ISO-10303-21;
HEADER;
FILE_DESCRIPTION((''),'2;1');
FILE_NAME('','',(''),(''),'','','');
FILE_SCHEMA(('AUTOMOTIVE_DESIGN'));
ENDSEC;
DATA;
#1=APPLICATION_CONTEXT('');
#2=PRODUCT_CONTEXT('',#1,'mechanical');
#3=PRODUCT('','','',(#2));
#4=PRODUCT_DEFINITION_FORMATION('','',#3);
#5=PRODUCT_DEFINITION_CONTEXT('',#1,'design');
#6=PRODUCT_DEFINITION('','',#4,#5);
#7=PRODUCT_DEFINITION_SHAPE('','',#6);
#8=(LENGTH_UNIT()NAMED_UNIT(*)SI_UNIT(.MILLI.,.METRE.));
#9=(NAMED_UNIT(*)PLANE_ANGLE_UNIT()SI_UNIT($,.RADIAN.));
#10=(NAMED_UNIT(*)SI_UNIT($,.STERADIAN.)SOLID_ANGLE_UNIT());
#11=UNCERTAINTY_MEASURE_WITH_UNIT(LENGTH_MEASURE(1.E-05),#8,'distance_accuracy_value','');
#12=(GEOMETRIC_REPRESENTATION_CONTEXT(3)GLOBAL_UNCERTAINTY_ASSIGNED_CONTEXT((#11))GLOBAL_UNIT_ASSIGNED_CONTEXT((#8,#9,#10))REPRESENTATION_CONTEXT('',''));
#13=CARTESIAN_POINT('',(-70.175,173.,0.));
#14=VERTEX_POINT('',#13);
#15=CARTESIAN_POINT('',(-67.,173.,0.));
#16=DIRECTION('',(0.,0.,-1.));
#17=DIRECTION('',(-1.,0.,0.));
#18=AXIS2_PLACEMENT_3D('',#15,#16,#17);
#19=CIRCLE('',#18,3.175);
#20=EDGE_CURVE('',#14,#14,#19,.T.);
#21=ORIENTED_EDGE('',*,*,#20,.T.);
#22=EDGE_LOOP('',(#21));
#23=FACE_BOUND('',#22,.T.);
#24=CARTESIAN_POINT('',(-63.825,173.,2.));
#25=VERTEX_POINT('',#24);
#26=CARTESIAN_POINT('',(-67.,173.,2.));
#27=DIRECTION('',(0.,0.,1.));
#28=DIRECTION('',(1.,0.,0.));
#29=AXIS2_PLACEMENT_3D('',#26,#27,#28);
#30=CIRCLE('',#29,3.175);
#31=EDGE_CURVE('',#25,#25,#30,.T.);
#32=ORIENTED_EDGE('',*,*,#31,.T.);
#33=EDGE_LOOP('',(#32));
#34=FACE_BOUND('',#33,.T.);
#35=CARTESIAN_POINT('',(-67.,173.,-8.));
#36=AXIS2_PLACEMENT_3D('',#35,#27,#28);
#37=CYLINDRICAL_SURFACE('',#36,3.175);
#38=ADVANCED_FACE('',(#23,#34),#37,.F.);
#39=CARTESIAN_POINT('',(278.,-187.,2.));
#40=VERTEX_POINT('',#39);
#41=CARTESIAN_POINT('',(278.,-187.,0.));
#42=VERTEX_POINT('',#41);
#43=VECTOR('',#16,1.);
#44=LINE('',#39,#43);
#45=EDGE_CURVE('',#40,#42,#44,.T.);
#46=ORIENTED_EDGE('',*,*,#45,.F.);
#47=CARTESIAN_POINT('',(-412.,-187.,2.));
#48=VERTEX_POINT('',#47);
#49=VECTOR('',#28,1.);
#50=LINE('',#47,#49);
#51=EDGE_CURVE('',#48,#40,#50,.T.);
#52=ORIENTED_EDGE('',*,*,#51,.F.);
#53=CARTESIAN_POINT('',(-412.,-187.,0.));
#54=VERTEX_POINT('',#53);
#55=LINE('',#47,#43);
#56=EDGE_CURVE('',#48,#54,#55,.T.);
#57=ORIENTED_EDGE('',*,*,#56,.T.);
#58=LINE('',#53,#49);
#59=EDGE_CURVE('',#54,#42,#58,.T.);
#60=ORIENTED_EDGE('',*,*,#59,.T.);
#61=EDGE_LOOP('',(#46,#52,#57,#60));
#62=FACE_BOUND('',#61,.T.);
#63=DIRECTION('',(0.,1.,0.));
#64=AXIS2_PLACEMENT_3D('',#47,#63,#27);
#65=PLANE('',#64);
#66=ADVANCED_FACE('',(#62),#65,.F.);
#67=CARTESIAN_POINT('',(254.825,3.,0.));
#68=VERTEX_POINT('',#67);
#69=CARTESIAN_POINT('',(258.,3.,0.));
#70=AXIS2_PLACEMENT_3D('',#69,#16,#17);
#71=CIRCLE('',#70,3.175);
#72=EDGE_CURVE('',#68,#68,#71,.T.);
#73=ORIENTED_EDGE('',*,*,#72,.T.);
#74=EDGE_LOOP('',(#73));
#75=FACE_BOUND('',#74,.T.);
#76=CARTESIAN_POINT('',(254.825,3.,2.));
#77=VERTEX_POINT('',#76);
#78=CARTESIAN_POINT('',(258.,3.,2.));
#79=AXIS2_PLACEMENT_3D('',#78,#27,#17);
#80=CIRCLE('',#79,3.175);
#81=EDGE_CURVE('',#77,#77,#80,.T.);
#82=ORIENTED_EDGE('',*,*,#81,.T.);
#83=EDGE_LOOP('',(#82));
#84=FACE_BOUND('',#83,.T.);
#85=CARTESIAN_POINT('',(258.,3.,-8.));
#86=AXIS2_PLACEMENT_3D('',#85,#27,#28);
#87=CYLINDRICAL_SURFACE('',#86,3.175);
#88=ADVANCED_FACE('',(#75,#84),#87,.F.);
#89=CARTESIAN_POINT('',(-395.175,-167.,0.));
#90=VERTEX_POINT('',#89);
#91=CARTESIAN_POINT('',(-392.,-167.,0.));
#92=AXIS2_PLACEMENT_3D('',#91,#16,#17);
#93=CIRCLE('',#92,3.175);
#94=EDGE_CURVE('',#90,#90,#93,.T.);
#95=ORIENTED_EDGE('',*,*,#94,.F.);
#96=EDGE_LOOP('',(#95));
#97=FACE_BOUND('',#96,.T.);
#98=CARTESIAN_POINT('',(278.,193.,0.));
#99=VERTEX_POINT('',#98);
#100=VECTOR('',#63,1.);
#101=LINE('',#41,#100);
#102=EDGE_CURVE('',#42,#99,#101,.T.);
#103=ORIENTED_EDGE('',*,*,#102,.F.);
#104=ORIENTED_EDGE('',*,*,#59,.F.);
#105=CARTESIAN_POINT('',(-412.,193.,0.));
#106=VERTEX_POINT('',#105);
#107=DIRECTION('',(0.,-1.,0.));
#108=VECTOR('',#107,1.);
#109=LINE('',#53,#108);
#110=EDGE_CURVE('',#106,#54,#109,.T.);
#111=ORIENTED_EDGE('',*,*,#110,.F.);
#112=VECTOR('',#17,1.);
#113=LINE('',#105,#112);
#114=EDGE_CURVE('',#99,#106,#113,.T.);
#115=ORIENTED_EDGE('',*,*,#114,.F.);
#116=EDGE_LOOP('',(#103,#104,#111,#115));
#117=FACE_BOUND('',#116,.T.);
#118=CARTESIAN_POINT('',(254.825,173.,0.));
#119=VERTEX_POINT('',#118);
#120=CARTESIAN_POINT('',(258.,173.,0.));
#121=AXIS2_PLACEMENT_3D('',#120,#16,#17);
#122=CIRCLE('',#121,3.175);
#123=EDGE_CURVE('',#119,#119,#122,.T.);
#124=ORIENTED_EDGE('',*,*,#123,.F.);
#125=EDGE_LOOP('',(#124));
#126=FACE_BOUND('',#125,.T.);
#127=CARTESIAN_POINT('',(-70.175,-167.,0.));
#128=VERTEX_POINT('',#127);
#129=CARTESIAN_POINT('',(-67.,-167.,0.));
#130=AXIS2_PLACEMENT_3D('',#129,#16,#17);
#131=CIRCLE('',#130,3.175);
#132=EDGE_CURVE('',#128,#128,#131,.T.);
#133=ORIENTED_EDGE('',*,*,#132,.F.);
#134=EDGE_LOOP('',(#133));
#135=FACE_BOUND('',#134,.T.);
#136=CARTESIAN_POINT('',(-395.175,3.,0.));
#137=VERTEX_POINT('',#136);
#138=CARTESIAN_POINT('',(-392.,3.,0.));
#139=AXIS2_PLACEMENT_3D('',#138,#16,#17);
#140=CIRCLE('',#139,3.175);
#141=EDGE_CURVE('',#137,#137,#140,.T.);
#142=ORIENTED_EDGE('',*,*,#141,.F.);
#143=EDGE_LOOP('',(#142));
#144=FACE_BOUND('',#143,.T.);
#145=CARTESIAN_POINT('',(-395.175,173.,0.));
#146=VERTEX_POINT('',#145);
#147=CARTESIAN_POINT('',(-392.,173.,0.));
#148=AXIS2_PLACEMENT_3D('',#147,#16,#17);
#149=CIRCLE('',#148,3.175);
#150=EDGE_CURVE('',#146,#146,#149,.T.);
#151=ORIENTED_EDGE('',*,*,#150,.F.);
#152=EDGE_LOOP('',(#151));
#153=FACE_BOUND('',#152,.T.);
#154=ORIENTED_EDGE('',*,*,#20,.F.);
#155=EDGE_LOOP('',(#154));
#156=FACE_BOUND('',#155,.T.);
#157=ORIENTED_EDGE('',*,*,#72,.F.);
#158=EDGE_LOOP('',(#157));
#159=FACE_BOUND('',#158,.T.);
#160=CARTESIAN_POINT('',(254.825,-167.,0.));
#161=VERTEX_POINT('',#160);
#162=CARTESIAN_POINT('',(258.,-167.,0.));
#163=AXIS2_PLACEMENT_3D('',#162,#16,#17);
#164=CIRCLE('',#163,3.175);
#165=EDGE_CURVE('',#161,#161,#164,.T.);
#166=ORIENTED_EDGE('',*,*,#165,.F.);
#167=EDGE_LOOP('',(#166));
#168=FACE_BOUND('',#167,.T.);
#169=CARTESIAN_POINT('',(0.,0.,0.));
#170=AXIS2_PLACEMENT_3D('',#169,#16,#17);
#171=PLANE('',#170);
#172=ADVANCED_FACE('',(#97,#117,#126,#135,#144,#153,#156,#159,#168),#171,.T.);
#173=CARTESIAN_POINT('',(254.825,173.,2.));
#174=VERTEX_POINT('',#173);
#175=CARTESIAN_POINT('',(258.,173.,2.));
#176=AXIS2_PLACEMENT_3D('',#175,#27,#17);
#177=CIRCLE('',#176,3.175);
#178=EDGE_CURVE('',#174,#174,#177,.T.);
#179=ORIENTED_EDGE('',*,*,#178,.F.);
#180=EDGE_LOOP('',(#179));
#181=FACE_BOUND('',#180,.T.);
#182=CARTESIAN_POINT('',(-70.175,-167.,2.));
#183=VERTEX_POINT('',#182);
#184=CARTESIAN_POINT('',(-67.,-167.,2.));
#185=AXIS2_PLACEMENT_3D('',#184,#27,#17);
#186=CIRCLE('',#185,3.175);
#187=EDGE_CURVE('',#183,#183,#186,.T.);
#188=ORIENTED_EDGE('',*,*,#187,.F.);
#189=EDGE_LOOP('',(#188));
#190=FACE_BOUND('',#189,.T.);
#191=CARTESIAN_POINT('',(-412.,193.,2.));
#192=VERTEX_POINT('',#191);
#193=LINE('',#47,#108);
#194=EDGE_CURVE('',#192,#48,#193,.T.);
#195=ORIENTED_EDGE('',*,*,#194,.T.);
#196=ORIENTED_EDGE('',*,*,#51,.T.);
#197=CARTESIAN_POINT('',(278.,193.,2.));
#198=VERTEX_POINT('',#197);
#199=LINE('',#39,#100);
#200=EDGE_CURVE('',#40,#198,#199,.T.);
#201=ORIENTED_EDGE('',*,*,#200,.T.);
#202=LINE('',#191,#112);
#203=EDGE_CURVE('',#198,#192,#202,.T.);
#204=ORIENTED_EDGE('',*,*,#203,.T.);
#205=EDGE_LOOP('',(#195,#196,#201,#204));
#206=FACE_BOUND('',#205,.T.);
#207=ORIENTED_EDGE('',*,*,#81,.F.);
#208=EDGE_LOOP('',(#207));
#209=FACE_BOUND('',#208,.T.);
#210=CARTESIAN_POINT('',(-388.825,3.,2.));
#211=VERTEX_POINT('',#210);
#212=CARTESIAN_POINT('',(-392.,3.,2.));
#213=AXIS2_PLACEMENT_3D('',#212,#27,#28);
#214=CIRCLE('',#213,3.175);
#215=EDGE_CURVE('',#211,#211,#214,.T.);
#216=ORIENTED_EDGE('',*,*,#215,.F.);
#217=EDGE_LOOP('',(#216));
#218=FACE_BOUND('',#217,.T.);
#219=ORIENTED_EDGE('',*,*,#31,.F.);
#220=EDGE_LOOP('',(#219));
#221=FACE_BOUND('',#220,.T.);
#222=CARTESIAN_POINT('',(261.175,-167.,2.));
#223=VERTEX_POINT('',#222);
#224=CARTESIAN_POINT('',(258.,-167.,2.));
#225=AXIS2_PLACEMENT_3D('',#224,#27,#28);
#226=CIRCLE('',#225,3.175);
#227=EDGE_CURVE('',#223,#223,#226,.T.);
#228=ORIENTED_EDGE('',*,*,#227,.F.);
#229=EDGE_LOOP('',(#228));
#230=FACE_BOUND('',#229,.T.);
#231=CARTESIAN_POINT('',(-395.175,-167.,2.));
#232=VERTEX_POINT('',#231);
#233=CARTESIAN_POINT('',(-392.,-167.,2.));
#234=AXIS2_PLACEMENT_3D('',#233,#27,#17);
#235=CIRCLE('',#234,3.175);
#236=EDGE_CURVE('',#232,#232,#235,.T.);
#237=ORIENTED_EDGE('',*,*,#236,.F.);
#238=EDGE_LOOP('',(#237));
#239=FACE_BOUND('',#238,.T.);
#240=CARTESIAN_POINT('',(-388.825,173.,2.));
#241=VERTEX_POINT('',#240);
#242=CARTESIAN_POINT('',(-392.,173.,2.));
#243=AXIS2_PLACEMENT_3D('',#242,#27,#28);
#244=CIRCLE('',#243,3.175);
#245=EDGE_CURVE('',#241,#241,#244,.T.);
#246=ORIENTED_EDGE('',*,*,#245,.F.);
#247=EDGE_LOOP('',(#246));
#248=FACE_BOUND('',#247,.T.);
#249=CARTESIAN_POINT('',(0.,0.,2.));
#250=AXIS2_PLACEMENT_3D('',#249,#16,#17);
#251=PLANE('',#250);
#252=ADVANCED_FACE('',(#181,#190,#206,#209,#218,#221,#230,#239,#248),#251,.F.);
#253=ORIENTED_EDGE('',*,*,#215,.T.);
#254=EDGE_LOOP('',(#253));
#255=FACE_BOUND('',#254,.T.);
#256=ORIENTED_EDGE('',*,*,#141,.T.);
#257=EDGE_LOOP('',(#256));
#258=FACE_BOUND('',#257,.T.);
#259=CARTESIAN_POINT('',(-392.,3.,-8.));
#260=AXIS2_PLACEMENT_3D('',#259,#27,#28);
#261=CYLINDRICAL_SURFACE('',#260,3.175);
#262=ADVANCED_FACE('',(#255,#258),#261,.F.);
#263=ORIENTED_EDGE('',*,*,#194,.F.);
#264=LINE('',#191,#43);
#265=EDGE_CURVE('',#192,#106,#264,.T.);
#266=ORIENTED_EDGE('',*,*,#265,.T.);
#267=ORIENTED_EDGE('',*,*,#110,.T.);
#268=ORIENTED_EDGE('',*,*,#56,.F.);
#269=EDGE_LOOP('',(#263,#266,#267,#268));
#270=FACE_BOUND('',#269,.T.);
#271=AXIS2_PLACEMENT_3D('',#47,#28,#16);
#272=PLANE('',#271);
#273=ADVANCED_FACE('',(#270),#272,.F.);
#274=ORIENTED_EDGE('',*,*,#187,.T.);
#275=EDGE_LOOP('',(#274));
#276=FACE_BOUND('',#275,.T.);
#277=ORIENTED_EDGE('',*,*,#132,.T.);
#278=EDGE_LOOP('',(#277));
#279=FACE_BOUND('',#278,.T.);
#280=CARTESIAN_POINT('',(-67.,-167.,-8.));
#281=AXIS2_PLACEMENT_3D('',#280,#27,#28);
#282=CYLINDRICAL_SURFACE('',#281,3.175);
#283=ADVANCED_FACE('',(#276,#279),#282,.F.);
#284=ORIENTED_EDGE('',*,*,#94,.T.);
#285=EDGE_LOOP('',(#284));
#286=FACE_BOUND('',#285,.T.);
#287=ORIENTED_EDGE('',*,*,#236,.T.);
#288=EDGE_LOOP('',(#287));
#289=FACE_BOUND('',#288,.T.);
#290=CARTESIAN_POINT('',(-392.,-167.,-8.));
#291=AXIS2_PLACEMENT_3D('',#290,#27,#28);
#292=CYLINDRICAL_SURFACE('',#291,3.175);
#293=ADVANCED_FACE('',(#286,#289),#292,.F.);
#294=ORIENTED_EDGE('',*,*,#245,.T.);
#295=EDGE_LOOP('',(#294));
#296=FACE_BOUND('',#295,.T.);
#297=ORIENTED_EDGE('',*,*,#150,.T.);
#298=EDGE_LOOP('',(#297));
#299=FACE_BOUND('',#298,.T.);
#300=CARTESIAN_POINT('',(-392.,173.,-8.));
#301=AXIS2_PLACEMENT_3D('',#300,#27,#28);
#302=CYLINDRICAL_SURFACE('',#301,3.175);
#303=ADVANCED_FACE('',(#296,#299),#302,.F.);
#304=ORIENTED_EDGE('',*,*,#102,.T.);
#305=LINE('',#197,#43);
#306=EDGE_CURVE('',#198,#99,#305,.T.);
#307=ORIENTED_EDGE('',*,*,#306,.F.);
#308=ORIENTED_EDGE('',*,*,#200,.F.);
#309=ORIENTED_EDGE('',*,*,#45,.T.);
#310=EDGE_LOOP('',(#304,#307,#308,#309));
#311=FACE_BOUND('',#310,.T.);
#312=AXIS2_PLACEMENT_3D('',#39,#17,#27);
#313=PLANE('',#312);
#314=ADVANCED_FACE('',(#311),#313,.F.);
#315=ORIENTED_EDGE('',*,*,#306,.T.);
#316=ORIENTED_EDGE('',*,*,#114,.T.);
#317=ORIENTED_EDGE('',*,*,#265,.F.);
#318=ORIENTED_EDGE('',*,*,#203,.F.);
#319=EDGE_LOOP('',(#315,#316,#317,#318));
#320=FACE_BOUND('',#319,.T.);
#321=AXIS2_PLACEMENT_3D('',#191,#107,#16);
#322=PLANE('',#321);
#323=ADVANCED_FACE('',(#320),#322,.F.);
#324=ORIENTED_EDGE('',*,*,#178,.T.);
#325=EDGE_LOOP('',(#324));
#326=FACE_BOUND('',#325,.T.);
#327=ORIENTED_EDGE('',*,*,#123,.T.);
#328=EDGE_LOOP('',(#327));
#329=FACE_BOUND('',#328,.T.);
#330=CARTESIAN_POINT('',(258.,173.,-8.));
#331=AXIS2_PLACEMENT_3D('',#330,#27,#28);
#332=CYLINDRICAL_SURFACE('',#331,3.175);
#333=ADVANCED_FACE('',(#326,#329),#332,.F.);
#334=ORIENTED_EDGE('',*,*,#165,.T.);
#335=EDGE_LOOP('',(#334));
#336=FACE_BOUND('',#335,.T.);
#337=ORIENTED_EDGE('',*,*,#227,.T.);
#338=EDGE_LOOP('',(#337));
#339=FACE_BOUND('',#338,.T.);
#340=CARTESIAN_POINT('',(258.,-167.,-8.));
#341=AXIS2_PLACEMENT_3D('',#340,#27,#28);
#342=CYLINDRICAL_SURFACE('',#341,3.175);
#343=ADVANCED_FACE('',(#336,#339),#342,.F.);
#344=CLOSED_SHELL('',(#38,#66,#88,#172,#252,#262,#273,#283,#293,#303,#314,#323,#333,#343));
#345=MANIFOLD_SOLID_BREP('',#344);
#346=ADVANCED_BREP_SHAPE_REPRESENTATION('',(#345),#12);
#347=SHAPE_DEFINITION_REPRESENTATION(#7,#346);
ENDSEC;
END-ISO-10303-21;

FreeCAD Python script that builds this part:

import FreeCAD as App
import Part
import Sketcher
Q = App.Units.Quantity

doc = App.newDocument("Part")
params = doc.addObject("Spreadsheet::Sheet", "Params")
for row, (alias, value) in enumerate([
    ("sketch1_width", "690 mm"),
    ("sketch1_height", "380 mm"),
    ("pad1_length", "2 mm"),
    ("sketch2_diameter", "6.35 mm"),
    ("pocket1_length", "10 mm"),
], start=1):
    params.set(f"A{row}", alias)
    params.set(f"B{row}", "=" + value)
    params.setAlias(f"B{row}", alias)

body = doc.addObject("PartDesign::Body", "Body")

sketch1 = body.newObject("Sketcher::SketchObject", "Sketch")
sketch1.AttachmentSupport = (doc.getObject("XY_Plane"), [""])
sketch1.MapMode = "FlatFace"
sketch1.addGeometry(Part.LineSegment(App.Vector(-412, 193, 0), App.Vector(-412, -187, 0)), False)
sketch1.addGeometry(Part.LineSegment(App.Vector(-412, -187, 0), App.Vector(278, -187, 0)), False)
sketch1.addGeometry(Part.LineSegment(App.Vector(278, -187, 0), App.Vector(278, 193, 0)), False)
sketch1.addGeometry(Part.LineSegment(App.Vector(278, 193, 0), App.Vector(-412, 193, 0)), False)
sketch1.addConstraint(Sketcher.Constraint("Coincident", 0, 2, 1, 1))
sketch1.addConstraint(Sketcher.Constraint("Coincident", 1, 2, 2, 1))
sketch1.addConstraint(Sketcher.Constraint("Coincident", 2, 2, 3, 1))
sketch1.addConstraint(Sketcher.Constraint("Coincident", 3, 2, 0, 1))
sketch1.addConstraint(Sketcher.Constraint("Vertical", 0))
sketch1.addConstraint(Sketcher.Constraint("Horizontal", 1))
sketch1.addConstraint(Sketcher.Constraint("Vertical", 2))
sketch1.addConstraint(Sketcher.Constraint("Horizontal", 3))
sketch1.addConstraint(Sketcher.Constraint("DistanceX", 1, 1, 1, 2, Q("690 mm")))
sketch1.addConstraint(Sketcher.Constraint("DistanceY", 0, 2, 0, 1, Q("380 mm")))
sketch1.addConstraint(Sketcher.Constraint("DistanceX", 0, 2, -1, 1, Q("412 mm")))
sketch1.addConstraint(Sketcher.Constraint("DistanceY", 0, 2, -1, 1, Q("187 mm")))
sketch1.setExpression("Constraints[8]", "Params.sketch1_width")
sketch1.setExpression("Constraints[9]", "Params.sketch1_height")
pad1 = body.newObject("PartDesign::Pad", "Pad")
pad1.Profile = sketch1
pad1.setExpression("Length", "Params.pad1_length")

sketch2 = body.newObject("Sketcher::SketchObject", "Sketch001")
sketch2.AttachmentSupport = (doc.getObject("XY_Plane"), [""])
sketch2.MapMode = "FlatFace"
sketch2.AttachmentOffset = App.Placement(App.Vector(0, 0, 2), App.Rotation())
sketch2.addGeometry(Part.Circle(App.Vector(-392, 173, 0), App.Vector(0, 0, 1), 3.2), False)
sketch2.addGeometry(Part.Circle(App.Vector(258, 173, 0), App.Vector(0, 0, 1), 3.2), False)
sketch2.addGeometry(Part.Circle(App.Vector(258, -167, 0), App.Vector(0, 0, 1), 3.2), False)
sketch2.addGeometry(Part.Circle(App.Vector(-392, -167, 0), App.Vector(0, 0, 1), 3.2), False)
sketch2.addGeometry(Part.Circle(App.Vector(-392, 3, 0), App.Vector(0, 0, 1), 3.2), False)
sketch2.addGeometry(Part.Circle(App.Vector(258, 3, 0), App.Vector(0, 0, 1), 3.2), False)
sketch2.addGeometry(Part.Circle(App.Vector(-67, 173, 0), App.Vector(0, 0, 1), 3.2), False)
sketch2.addGeometry(Part.Circle(App.Vector(-67, -167, 0), App.Vector(0, 0, 1), 3.2), False)
sketch2.addConstraint(Sketcher.Constraint("Equal", 0, 1))
sketch2.addConstraint(Sketcher.Constraint("Equal", 1, 2))
sketch2.addConstraint(Sketcher.Constraint("Equal", 2, 3))
sketch2.addConstraint(Sketcher.Constraint("Equal", 3, 4))
sketch2.addConstraint(Sketcher.Constraint("Equal", 4, 5))
sketch2.addConstraint(Sketcher.Constraint("Equal", 5, 6))
sketch2.addConstraint(Sketcher.Constraint("Equal", 6, 7))
sketch2.addConstraint(Sketcher.Constraint("Horizontal", 0, 3, 1, 3))
sketch2.addConstraint(Sketcher.Constraint("Horizontal", 2, 3, 3, 3))
sketch2.addConstraint(Sketcher.Constraint("Horizontal", 4, 3, 5, 3))
sketch2.addConstraint(Sketcher.Constraint("Horizontal", 1, 3, 6, 3))
sketch2.addConstraint(Sketcher.Constraint("Horizontal", 3, 3, 7, 3))
sketch2.addConstraint(Sketcher.Constraint("Vertical", 1, 3, 2, 3))
sketch2.addConstraint(Sketcher.Constraint("Vertical", 0, 3, 3, 3))
sketch2.addConstraint(Sketcher.Constraint("Vertical", 3, 3, 4, 3))
sketch2.addConstraint(Sketcher.Constraint("Vertical", 2, 3, 5, 3))
sketch2.addConstraint(Sketcher.Constraint("Vertical", 6, 3, 7, 3))
sketch2.addConstraint(Sketcher.Constraint("Diameter", 0, Q("6.35 mm")))
sketch2.addConstraint(Sketcher.Constraint("DistanceX", 0, 3, -1, 1, Q("392 mm")))
sketch2.addConstraint(Sketcher.Constraint("DistanceY", -1, 1, 0, 3, Q("173 mm")))
sketch2.addConstraint(Sketcher.Constraint("DistanceX", -1, 1, 1, 3, Q("258 mm")))
sketch2.addConstraint(Sketcher.Constraint("DistanceY", 2, 3, -1, 1, Q("167 mm")))
sketch2.addConstraint(Sketcher.Constraint("DistanceY", -1, 1, 4, 3, Q("3 mm")))
sketch2.addConstraint(Sketcher.Constraint("DistanceX", 6, 3, -1, 1, Q("67 mm")))
sketch2.setExpression("Constraints[17]", "Params.sketch2_diameter")
pocket1 = body.newObject("PartDesign::Pocket", "Pocket")
pocket1.Profile = sketch2
pocket1.setExpression("Length", "Params.pocket1_length")

doc.recompute()
